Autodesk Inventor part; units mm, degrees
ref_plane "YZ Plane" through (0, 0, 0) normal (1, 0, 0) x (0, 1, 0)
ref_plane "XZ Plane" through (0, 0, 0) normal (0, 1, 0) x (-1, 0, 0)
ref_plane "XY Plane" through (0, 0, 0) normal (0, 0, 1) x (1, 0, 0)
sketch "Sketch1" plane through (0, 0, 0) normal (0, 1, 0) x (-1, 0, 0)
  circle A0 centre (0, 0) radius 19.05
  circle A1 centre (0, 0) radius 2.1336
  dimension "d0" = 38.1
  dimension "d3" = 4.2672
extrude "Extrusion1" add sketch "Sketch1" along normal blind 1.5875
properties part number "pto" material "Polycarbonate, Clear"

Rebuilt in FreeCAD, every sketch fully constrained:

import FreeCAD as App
import Part
import Sketcher
Q = App.Units.Quantity

doc = App.newDocument("Part")
body = doc.addObject("PartDesign::Body", "Body")

# Sketch on XZ plane
sketch1 = body.newObject("Sketcher::SketchObject", "Sketch")
sketch1.AttachmentSupport = (doc.getObject("XZ_Plane"), [""])
sketch1.MapMode = "FlatFace"
sketch1.addGeometry(Part.Circle(App.Vector(0, 0, 0), App.Vector(0, 0, 1), 19.05), False)
sketch1.addGeometry(Part.Circle(App.Vector(0, 0, 0), App.Vector(0, 0, 1), 2.1336), False)
sketch1.addConstraint(Sketcher.Constraint("Coincident", 0, 3, -1, 1))
sketch1.addConstraint(Sketcher.Constraint("Coincident", 1, 3, -1, 1))
sketch1.addConstraint(Sketcher.Constraint("Diameter", 0, Q("1.5 in")))
sketch1.addConstraint(Sketcher.Constraint("Diameter", 1, Q("0.168 in")))
pad1 = body.newObject("PartDesign::Pad", "Pad")
pad1.Profile = sketch1
pad1.Length = Q("0.0625 in")
pad1.Reversed = True

doc.recompute()
